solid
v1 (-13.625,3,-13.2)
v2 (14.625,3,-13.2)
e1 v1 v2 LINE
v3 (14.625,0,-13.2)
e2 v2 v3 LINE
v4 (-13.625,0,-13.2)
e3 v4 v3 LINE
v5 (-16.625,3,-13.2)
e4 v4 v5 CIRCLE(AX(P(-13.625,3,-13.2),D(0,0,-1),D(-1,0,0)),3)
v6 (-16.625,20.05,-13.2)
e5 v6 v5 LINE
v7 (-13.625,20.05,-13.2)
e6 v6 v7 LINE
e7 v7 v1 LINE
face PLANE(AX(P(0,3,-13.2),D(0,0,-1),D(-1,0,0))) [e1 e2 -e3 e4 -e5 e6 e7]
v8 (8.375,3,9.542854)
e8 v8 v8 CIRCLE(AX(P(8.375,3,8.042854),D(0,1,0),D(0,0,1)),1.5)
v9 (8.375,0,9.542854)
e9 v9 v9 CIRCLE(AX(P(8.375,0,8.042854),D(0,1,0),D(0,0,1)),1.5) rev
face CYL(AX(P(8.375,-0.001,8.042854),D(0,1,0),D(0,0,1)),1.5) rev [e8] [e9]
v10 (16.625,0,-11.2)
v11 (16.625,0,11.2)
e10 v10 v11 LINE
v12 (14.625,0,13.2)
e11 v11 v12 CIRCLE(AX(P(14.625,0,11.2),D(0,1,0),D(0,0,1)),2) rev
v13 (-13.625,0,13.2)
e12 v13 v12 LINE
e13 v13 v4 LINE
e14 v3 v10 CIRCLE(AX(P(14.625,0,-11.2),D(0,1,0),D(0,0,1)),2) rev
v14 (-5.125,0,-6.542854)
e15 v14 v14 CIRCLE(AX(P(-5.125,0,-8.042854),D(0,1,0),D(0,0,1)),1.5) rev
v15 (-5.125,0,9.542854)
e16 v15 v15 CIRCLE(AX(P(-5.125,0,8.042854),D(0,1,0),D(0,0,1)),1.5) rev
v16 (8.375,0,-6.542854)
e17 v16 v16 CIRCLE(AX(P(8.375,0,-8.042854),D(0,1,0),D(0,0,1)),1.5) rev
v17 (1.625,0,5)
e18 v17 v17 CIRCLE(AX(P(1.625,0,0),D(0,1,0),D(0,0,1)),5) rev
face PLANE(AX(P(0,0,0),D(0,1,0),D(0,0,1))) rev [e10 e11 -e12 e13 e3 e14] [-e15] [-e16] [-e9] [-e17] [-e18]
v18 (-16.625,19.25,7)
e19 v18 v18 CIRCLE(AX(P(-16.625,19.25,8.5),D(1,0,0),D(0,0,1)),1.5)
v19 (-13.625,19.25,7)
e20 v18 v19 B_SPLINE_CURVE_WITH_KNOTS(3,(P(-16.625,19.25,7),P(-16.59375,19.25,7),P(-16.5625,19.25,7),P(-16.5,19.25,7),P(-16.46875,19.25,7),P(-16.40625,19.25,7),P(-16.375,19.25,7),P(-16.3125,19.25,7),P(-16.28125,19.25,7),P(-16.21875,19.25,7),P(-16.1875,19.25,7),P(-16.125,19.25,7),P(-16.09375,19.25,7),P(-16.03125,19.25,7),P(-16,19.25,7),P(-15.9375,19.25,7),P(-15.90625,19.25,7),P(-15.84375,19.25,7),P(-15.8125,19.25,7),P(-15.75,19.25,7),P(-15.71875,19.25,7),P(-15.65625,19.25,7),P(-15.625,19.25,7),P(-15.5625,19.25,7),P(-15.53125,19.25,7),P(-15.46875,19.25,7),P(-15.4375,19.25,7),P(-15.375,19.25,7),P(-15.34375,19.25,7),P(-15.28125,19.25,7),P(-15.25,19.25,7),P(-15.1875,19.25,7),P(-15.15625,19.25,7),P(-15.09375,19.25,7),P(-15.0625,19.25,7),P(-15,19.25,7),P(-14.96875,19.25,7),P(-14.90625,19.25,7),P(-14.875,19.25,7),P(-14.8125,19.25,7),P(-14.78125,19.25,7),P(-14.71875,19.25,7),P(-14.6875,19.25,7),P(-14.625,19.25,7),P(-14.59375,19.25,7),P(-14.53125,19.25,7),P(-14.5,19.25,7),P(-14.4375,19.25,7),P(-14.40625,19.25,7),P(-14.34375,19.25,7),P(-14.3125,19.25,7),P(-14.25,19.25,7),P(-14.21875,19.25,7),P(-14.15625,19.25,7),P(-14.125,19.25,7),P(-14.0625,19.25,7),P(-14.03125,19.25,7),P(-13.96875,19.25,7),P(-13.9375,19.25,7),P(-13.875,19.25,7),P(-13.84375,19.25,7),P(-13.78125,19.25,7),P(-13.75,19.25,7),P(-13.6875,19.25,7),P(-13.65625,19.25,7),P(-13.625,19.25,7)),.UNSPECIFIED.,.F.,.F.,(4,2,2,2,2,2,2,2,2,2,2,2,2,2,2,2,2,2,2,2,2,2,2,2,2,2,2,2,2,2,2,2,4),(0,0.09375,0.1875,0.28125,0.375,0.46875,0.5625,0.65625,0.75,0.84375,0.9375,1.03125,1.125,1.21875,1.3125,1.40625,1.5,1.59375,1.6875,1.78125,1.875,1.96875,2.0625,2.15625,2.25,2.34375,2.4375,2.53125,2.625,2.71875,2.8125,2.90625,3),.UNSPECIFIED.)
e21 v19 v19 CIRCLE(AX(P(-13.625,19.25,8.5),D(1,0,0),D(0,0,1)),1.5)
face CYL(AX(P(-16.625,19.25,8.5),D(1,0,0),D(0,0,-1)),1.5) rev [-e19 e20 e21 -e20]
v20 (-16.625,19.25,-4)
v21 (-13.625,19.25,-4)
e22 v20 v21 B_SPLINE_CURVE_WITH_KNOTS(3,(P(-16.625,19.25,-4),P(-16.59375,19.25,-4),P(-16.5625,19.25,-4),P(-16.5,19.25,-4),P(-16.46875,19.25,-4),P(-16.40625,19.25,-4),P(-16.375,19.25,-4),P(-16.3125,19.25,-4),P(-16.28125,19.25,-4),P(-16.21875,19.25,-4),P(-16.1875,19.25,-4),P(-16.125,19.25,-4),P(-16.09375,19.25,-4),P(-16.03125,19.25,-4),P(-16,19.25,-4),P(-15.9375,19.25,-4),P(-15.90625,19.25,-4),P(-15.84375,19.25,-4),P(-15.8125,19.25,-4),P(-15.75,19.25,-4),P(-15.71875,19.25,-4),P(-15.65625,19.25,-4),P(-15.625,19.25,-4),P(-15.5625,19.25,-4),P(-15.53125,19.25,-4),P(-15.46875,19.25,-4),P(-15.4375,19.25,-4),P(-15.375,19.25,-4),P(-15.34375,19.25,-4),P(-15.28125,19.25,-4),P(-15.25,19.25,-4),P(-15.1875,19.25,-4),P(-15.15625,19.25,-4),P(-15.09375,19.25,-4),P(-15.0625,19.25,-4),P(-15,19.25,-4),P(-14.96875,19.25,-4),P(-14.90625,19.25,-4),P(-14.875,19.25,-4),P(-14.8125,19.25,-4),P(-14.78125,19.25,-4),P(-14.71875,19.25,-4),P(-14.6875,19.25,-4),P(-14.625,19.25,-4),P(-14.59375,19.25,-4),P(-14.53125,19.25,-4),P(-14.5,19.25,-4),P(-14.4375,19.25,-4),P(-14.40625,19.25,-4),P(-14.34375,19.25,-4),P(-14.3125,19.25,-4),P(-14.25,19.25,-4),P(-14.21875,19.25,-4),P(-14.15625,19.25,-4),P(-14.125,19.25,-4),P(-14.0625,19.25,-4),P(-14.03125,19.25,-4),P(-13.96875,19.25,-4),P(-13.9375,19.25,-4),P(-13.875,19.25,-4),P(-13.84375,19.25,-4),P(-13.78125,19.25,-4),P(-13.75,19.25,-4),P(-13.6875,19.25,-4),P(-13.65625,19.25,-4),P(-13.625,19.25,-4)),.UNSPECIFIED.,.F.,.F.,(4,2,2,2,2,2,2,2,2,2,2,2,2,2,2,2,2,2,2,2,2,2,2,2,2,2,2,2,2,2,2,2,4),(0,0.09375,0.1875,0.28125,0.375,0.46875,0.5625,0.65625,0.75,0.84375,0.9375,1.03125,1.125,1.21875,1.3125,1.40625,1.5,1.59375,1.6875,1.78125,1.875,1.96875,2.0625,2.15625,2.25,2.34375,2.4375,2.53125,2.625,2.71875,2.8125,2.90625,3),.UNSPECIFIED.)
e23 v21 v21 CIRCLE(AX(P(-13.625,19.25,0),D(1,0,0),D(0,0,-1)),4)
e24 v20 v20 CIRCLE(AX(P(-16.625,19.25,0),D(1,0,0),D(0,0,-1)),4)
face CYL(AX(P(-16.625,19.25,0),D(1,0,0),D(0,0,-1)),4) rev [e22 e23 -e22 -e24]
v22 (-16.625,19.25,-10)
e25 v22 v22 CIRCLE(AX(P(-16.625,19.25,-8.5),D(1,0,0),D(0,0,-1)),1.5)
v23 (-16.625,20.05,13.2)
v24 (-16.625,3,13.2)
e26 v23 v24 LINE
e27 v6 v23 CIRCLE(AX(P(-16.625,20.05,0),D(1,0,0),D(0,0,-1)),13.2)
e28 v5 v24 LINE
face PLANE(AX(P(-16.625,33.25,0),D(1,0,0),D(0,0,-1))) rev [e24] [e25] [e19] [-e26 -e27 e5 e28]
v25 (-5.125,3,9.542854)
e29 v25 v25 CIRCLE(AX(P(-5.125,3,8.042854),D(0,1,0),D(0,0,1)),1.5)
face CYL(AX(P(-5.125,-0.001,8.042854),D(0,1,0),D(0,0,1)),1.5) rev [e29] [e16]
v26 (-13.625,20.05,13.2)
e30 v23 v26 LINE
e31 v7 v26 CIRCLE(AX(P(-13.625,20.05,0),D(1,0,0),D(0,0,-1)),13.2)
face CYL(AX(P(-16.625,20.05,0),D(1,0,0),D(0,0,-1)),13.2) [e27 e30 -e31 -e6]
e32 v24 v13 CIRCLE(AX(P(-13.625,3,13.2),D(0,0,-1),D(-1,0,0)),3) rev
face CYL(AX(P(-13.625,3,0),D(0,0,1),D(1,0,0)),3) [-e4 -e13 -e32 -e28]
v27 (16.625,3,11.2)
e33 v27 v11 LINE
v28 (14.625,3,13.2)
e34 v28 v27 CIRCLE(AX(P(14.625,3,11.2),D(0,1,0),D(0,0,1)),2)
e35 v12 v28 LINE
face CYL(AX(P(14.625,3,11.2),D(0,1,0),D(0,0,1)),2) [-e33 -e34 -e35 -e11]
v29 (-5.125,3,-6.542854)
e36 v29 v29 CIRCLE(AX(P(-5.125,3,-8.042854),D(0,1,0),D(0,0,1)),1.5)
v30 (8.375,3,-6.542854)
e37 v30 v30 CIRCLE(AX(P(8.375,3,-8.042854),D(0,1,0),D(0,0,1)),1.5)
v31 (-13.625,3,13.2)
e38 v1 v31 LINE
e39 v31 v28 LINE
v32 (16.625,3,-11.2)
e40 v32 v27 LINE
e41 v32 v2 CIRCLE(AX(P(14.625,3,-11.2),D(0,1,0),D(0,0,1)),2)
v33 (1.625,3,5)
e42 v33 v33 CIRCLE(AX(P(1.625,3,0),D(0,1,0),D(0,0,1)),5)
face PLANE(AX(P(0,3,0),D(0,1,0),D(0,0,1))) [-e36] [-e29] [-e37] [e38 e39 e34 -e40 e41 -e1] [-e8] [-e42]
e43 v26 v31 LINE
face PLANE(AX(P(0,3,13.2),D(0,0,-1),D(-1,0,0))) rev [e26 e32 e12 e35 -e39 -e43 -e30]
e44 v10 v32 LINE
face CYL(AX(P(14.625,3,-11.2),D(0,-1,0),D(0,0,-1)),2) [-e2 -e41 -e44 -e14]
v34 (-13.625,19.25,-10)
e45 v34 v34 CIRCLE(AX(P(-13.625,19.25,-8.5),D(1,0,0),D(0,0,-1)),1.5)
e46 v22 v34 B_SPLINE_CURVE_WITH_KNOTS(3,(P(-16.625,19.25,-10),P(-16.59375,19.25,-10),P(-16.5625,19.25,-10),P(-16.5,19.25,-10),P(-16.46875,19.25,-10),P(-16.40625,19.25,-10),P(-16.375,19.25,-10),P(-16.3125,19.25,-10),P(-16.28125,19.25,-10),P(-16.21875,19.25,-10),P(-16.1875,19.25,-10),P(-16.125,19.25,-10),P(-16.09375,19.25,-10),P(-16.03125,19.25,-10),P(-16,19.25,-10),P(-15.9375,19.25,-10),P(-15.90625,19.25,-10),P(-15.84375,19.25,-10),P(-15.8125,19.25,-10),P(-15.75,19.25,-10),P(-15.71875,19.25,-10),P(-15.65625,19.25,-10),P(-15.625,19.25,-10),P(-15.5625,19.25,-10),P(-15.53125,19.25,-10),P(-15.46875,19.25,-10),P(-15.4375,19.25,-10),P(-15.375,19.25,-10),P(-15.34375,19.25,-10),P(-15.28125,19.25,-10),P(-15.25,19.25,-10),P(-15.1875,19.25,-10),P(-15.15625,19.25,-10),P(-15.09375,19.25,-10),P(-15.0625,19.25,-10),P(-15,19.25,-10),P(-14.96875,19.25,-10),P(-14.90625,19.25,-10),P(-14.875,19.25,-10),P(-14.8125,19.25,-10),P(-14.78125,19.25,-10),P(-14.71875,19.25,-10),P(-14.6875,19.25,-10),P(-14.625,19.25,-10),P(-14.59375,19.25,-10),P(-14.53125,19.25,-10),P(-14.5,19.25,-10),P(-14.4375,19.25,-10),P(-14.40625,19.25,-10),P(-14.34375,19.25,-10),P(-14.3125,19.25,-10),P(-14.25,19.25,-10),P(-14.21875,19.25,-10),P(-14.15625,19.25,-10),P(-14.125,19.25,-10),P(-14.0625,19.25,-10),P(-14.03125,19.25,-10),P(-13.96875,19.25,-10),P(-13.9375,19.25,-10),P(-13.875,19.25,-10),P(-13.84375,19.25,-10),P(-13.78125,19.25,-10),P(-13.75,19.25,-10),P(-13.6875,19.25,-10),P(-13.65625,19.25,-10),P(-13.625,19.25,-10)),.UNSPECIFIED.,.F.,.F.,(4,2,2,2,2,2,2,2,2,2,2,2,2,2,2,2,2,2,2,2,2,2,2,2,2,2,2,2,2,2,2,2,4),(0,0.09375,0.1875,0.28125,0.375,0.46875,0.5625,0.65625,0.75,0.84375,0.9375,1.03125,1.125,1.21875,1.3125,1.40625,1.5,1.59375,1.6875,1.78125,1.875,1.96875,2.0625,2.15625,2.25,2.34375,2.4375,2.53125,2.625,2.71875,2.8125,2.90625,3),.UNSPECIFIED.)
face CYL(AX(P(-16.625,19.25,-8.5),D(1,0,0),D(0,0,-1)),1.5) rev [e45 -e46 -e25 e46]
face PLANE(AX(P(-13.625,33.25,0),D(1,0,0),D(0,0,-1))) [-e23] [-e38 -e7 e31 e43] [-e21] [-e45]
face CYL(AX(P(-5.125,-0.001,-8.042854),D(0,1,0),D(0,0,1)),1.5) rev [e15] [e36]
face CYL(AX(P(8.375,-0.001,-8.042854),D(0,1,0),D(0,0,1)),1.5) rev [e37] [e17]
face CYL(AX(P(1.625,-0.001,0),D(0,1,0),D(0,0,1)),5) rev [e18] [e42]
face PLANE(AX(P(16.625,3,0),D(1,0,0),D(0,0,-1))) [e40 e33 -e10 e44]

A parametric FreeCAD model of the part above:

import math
import FreeCAD as App
import Part
import Sketcher

V = App.Vector
Q = App.Units.Quantity


def edges_at(feature, points):
    """Names of the edges that pass closest to the given points."""
    edges = feature.Shape.Edges
    near = lambda p: min(range(len(edges)), key=lambda i: edges[i].distToShape(Part.Vertex(*p))[0])
    return sorted({f"Edge{near(p) + 1}" for p in points})

doc = App.newDocument("Part")
params = doc.addObject("Spreadsheet::Sheet", "Params")
for row, (alias, value) in enumerate([
    ("sketch1_height", "26.4 mm"),
    ("sketch1_width", "30.25 mm"),
    ("pad1_length", "3 mm"),
    ("sketch2_width", "3 mm"),
    ("sketch2_height", "26.4 mm"),
    ("pad2_length", "33.25 mm"),
    ("fillet_radius", "3 mm"),
    ("sketch3_radius", "13.2 mm"),
    ("fillet2_radius", "2 mm"),
    ("sketch4_diameter", "8 mm"),
    ("sketch4_diameter2", "3 mm"),
    ("sketch5_diameter", "10 mm"),
    ("sketch6_diameter", "3 mm"),
    ("sketch7_diameter", "3 mm"),
    ("sketch8_diameter", "3 mm"),
    ("sketch9_diameter", "3 mm"),
], start=1):
    params.set(f"A{row}", alias)
    params.set(f"B{row}", "=" + value)
    params.setAlias(f"B{row}", alias)

body = doc.addObject("PartDesign::Body", "Body")

# Sketch on XZ plane
sketch1 = body.newObject("Sketcher::SketchObject", "Sketch")
sketch1.AttachmentSupport = (doc.getObject("XZ_Plane"), [""])
sketch1.MapMode = "FlatFace"
sketch1.addGeometry(Part.LineSegment(V(-13.625, -13.2, 0), V(-13.625, 13.2, 0)), False)
sketch1.addGeometry(Part.LineSegment(V(-13.625, 13.2, 0), V(16.625, 13.2, 0)), False)
sketch1.addGeometry(Part.LineSegment(V(16.625, 13.2, 0), V(16.625, -13.2, 0)), False)
sketch1.addGeometry(Part.LineSegment(V(16.625, -13.2, 0), V(-13.625, -13.2, 0)), False)
sketch1.addConstraint(Sketcher.Constraint("Coincident", 0, 2, 1, 1))
sketch1.addConstraint(Sketcher.Constraint("Coincident", 1, 2, 2, 1))
sketch1.addConstraint(Sketcher.Constraint("Coincident", 2, 2, 3, 1))
sketch1.addConstraint(Sketcher.Constraint("Coincident", 3, 2, 0, 1))
sketch1.addConstraint(Sketcher.Constraint("Vertical", 0))
sketch1.addConstraint(Sketcher.Constraint("Horizontal", 1))
sketch1.addConstraint(Sketcher.Constraint("Vertical", 2))
sketch1.addConstraint(Sketcher.Constraint("Horizontal", 3))
sketch1.addConstraint(Sketcher.Constraint("DistanceY", 0, 1, 0, 2, Q("26.4 mm")))
sketch1.addConstraint(Sketcher.Constraint("DistanceX", 1, 1, 1, 2, Q("30.25 mm")))
sketch1.addConstraint(Sketcher.Constraint("DistanceY", -1, 1, 0, 2, Q("13.2 mm")))
sketch1.addConstraint(Sketcher.Constraint("DistanceX", 0, 2, -1, 1, Q("13.625 mm")))
sketch1.setExpression("Constraints[8]", "Params.sketch1_height")
sketch1.setExpression("Constraints[9]", "Params.sketch1_width")
pad1 = body.newObject("PartDesign::Pad", "Pad")
pad1.Profile = sketch1
pad1.setExpression("Length", "Params.pad1_length")
pad1.Reversed = True

# Sketch on XZ plane
sketch2 = body.newObject("Sketcher::SketchObject", "Sketch001")
sketch2.AttachmentSupport = (doc.getObject("XZ_Plane"), [""])
sketch2.MapMode = "FlatFace"
sketch2.addGeometry(Part.LineSegment(V(-16.625, -13.2, 0), V(-16.625, 13.2, 0)), False)
sketch2.addGeometry(Part.LineSegment(V(-16.625, 13.2, 0), V(-13.625, 13.2, 0)), False)
sketch2.addGeometry(Part.LineSegment(V(-13.625, 13.2, 0), V(-13.625, -13.2, 0)), False)
sketch2.addGeometry(Part.LineSegment(V(-13.625, -13.2, 0), V(-16.625, -13.2, 0)), False)
sketch2.addConstraint(Sketcher.Constraint("Coincident", 0, 2, 1, 1))
sketch2.addConstraint(Sketcher.Constraint("Coincident", 1, 2, 2, 1))
sketch2.addConstraint(Sketcher.Constraint("Coincident", 2, 2, 3, 1))
sketch2.addConstraint(Sketcher.Constraint("Coincident", 3, 2, 0, 1))
sketch2.addConstraint(Sketcher.Constraint("Vertical", 0))
sketch2.addConstraint(Sketcher.Constraint("Horizontal", 1))
sketch2.addConstraint(Sketcher.Constraint("Vertical", 2))
sketch2.addConstraint(Sketcher.Constraint("Horizontal", 3))
sketch2.addConstraint(Sketcher.Constraint("DistanceX", 1, 1, 1, 2, Q("3 mm")))
sketch2.addConstraint(Sketcher.Constraint("DistanceY", 0, 1, 0, 2, Q("26.4 mm")))
sketch2.addConstraint(Sketcher.Constraint("DistanceY", -1, 1, 0, 2, Q("13.2 mm")))
sketch2.addConstraint(Sketcher.Constraint("DistanceX", 0, 2, -1, 1, Q("16.625 mm")))
sketch2.setExpression("Constraints[8]", "Params.sketch2_width")
sketch2.setExpression("Constraints[9]", "Params.sketch2_height")
pad2 = body.newObject("PartDesign::Pad", "Pad001")
pad2.Profile = sketch2
pad2.setExpression("Length", "Params.pad2_length")
pad2.Reversed = True
doc.recompute()

fillet = body.newObject("PartDesign::Fillet", "Fillet")
fillet.Base = (pad2, edges_at(pad2, [(-16.625, 0, 0)]))
fillet.setExpression("Radius", "Params.fillet_radius")

# Sketch on YZ plane
sketch3 = body.newObject("Sketcher::SketchObject", "Sketch002")
sketch3.AttachmentSupport = (doc.getObject("YZ_Plane"), [""])
sketch3.MapMode = "FlatFace"
sketch3.AttachmentOffset = App.Placement(V(0, 0, -13.625), App.Rotation())
sketch3.addGeometry(Part.LineSegment(V(33.25, 13.2, 0), V(20.05, 13.2, 0)), False)
sketch3.addGeometry(Part.ArcOfCircle(Part.Circle(V(20.05, 0, 0), V(0, 0, 1), 13.2), math.radians(0), math.radians(90)), False)
sketch3.addGeometry(Part.LineSegment(V(33.25, 0, 0), V(33.25, 13.2, 0)), False)
sketch3.addGeometry(Part.ArcOfCircle(Part.Circle(V(20.05, 0, 0), V(0, 0, 1), 13.2), math.radians(-90), math.radians(0)), False)
sketch3.addGeometry(Part.LineSegment(V(20.05, -13.2, 0), V(33.25, -13.2, 0)), False)
sketch3.addGeometry(Part.LineSegment(V(33.25, -13.2, 0), V(33.25, 0, 0)), False)
sketch3.addConstraint(Sketcher.Constraint("Tangent", 0, 2, 1, 2))
sketch3.addConstraint(Sketcher.Constraint("Tangent", 1, 1, 2, 1))
sketch3.addConstraint(Sketcher.Constraint("Coincident", 2, 2, 0, 1))
sketch3.addConstraint(Sketcher.Constraint("Tangent", 3, 1, 4, 1))
sketch3.addConstraint(Sketcher.Constraint("Coincident", 4, 2, 5, 1))
sketch3.addConstraint(Sketcher.Constraint("Tangent", 5, 2, 3, 2))
sketch3.addConstraint(Sketcher.Constraint("Horizontal", 0))
sketch3.addConstraint(Sketcher.Constraint("Vertical", 2))
sketch3.addConstraint(Sketcher.Constraint("Horizontal", 4))
sketch3.addConstraint(Sketcher.Constraint("Vertical", 5))
sketch3.addConstraint(Sketcher.Constraint("Coincident", 3, 3, 1, 3))
sketch3.addConstraint(Sketcher.Constraint("Equal", 1, 3))
sketch3.addConstraint(Sketcher.Constraint("PointOnObject", 1, 3, -1))
sketch3.addConstraint(Sketcher.Constraint("Radius", 1, Q("13.2 mm")))
sketch3.addConstraint(Sketcher.Constraint("DistanceX", -1, 1, 1, 3, Q("20.05 mm")))
sketch3.setExpression("Constraints[13]", "Params.sketch3_radius")
pocket1 = body.newObject("PartDesign::Pocket", "Pocket")
pocket1.Profile = sketch3
pocket1.Type = "ThroughAll"
pocket1.Midplane = True
doc.recompute()

fillet2 = body.newObject("PartDesign::Fillet", "Fillet001")
fillet2.Base = (pocket1, edges_at(pocket1, [(16.625, 1.5, 13.2), (16.625, 1.5, -13.2)]))
fillet2.setExpression("Radius", "Params.fillet2_radius")

# Sketch on YZ plane
sketch4 = body.newObject("Sketcher::SketchObject", "Sketch003")
sketch4.AttachmentSupport = (doc.getObject("YZ_Plane"), [""])
sketch4.MapMode = "FlatFace"
sketch4.AttachmentOffset = App.Placement(V(0, 0, -13.625), App.Rotation())
sketch4.addGeometry(Part.Circle(V(19.25, 0, 0), V(0, 0, 1), 4), False)
sketch4.addGeometry(Part.Circle(V(19.25, -8.5, 0), V(0, 0, 1), 1.5), False)
sketch4.addGeometry(Part.Circle(V(19.25, 8.5, 0), V(0, 0, 1), 1.5), False)
sketch4.addConstraint(Sketcher.Constraint("Equal", 1, 2))
sketch4.addConstraint(Sketcher.Constraint("Symmetric", 1, 3, 2, 3, -1))
sketch4.addConstraint(Sketcher.Constraint("PointOnObject", 0, 3, -1))
sketch4.addConstraint(Sketcher.Constraint("Vertical", 0, 3, 1, 3))
sketch4.addConstraint(Sketcher.Constraint("Diameter", 0, Q("8 mm")))
sketch4.addConstraint(Sketcher.Constraint("Diameter", 1, Q("3 mm")))
sketch4.addConstraint(Sketcher.Constraint("DistanceY", 1, 3, 2, 3, Q("17 mm")))
sketch4.addConstraint(Sketcher.Constraint("DistanceX", -1, 1, 0, 3, Q("19.25 mm")))
sketch4.setExpression("Constraints[4]", "Params.sketch4_diameter")
sketch4.setExpression("Constraints[5]", "Params.sketch4_diameter2")
pocket2 = body.newObject("PartDesign::Pocket", "Pocket001")
pocket2.Profile = sketch4
pocket2.Type = "ThroughAll"

# Sketch on XZ plane
sketch5 = body.newObject("Sketcher::SketchObject", "Sketch004")
sketch5.AttachmentSupport = (doc.getObject("XZ_Plane"), [""])
sketch5.MapMode = "FlatFace"
sketch5.AttachmentOffset = App.Placement(V(0, 0, -3), App.Rotation())
sketch5.addGeometry(Part.Circle(V(1.625, 0, 0), V(0, 0, 1), 5), False)
sketch5.addConstraint(Sketcher.Constraint("PointOnObject", 0, 3, -1))
sketch5.addConstraint(Sketcher.Constraint("Diameter", 0, Q("10 mm")))
sketch5.addConstraint(Sketcher.Constraint("DistanceX", -1, 1, 0, 3, Q("1.625 mm")))
sketch5.setExpression("Constraints[1]", "Params.sketch5_diameter")
pocket3 = body.newObject("PartDesign::Pocket", "Pocket002")
pocket3.Profile = sketch5
pocket3.Type = "UpToFirst"
pocket3.Reversed = True

# Sketch on XZ plane
sketch6 = body.newObject("Sketcher::SketchObject", "Sketch005")
sketch6.AttachmentSupport = (doc.getObject("XZ_Plane"), [""])
sketch6.MapMode = "FlatFace"
sketch6.AttachmentOffset = App.Placement(V(0, 0, -3), App.Rotation())
sketch6.addGeometry(Part.Circle(V(-5.125, 8.042854, 0), V(0, 0, 1), 1.5), False)
sketch6.addConstraint(Sketcher.Constraint("Diameter", 0, Q("3 mm")))
sketch6.addConstraint(Sketcher.Constraint("DistanceX", 0, 3, -1, 1, Q("5.125 mm")))
sketch6.addConstraint(Sketcher.Constraint("DistanceY", -1, 1, 0, 3, Q("8.042854 mm")))
sketch6.setExpression("Constraints[0]", "Params.sketch6_diameter")
pocket4 = body.newObject("PartDesign::Pocket", "Pocket003")
pocket4.Profile = sketch6
pocket4.Type = "UpToFirst"
pocket4.Reversed = True

# Sketch on XZ plane
sketch7 = body.newObject("Sketcher::SketchObject", "Sketch006")
sketch7.AttachmentSupport = (doc.getObject("XZ_Plane"), [""])
sketch7.MapMode = "FlatFace"
sketch7.AttachmentOffset = App.Placement(V(0, 0, -3), App.Rotation())
sketch7.addGeometry(Part.Circle(V(8.375, -8.042854, 0), V(0, 0, 1), 1.5), False)
sketch7.addConstraint(Sketcher.Constraint("Diameter", 0, Q("3 mm")))
sketch7.addConstraint(Sketcher.Constraint("DistanceX", -1, 1, 0, 3, Q("8.375 mm")))
sketch7.addConstraint(Sketcher.Constraint("DistanceY", 0, 3, -1, 1, Q("8.042854 mm")))
sketch7.setExpression("Constraints[0]", "Params.sketch7_diameter")
pocket5 = body.newObject("PartDesign::Pocket", "Pocket004")
pocket5.Profile = sketch7
pocket5.Type = "UpToFirst"
pocket5.Reversed = True

# Sketch on XZ plane
sketch8 = body.newObject("Sketcher::SketchObject", "Sketch007")
sketch8.AttachmentSupport = (doc.getObject("XZ_Plane"), [""])
sketch8.MapMode = "FlatFace"
sketch8.AttachmentOffset = App.Placement(V(0, 0, -3), App.Rotation())
sketch8.addGeometry(Part.Circle(V(8.375, 8.042854, 0), V(0, 0, 1), 1.5), False)
sketch8.addConstraint(Sketcher.Constraint("Diameter", 0, Q("3 mm")))
sketch8.addConstraint(Sketcher.Constraint("DistanceX", -1, 1, 0, 3, Q("8.375 mm")))
sketch8.addConstraint(Sketcher.Constraint("DistanceY", -1, 1, 0, 3, Q("8.042854 mm")))
sketch8.setExpression("Constraints[0]", "Params.sketch8_diameter")
pocket6 = body.newObject("PartDesign::Pocket", "Pocket005")
pocket6.Profile = sketch8
pocket6.Type = "UpToFirst"
pocket6.Reversed = True

# Sketch on XZ plane
sketch9 = body.newObject("Sketcher::SketchObject", "Sketch008")
sketch9.AttachmentSupport = (doc.getObject("XZ_Plane"), [""])
sketch9.MapMode = "FlatFace"
sketch9.AttachmentOffset = App.Placement(V(0, 0, -3), App.Rotation())
sketch9.addGeometry(Part.Circle(V(-5.125, -8.042854, 0), V(0, 0, 1), 1.5), False)
sketch9.addConstraint(Sketcher.Constraint("Diameter", 0, Q("3 mm")))
sketch9.addConstraint(Sketcher.Constraint("DistanceX", 0, 3, -1, 1, Q("5.125 mm")))
sketch9.addConstraint(Sketcher.Constraint("DistanceY", 0, 3, -1, 1, Q("8.042854 mm")))
sketch9.setExpression("Constraints[0]", "Params.sketch9_diameter")
pocket7 = body.newObject("PartDesign::Pocket", "Pocket006")
pocket7.Profile = sketch9
pocket7.Type = "UpToFirst"
pocket7.Reversed = True

doc.recompute()
